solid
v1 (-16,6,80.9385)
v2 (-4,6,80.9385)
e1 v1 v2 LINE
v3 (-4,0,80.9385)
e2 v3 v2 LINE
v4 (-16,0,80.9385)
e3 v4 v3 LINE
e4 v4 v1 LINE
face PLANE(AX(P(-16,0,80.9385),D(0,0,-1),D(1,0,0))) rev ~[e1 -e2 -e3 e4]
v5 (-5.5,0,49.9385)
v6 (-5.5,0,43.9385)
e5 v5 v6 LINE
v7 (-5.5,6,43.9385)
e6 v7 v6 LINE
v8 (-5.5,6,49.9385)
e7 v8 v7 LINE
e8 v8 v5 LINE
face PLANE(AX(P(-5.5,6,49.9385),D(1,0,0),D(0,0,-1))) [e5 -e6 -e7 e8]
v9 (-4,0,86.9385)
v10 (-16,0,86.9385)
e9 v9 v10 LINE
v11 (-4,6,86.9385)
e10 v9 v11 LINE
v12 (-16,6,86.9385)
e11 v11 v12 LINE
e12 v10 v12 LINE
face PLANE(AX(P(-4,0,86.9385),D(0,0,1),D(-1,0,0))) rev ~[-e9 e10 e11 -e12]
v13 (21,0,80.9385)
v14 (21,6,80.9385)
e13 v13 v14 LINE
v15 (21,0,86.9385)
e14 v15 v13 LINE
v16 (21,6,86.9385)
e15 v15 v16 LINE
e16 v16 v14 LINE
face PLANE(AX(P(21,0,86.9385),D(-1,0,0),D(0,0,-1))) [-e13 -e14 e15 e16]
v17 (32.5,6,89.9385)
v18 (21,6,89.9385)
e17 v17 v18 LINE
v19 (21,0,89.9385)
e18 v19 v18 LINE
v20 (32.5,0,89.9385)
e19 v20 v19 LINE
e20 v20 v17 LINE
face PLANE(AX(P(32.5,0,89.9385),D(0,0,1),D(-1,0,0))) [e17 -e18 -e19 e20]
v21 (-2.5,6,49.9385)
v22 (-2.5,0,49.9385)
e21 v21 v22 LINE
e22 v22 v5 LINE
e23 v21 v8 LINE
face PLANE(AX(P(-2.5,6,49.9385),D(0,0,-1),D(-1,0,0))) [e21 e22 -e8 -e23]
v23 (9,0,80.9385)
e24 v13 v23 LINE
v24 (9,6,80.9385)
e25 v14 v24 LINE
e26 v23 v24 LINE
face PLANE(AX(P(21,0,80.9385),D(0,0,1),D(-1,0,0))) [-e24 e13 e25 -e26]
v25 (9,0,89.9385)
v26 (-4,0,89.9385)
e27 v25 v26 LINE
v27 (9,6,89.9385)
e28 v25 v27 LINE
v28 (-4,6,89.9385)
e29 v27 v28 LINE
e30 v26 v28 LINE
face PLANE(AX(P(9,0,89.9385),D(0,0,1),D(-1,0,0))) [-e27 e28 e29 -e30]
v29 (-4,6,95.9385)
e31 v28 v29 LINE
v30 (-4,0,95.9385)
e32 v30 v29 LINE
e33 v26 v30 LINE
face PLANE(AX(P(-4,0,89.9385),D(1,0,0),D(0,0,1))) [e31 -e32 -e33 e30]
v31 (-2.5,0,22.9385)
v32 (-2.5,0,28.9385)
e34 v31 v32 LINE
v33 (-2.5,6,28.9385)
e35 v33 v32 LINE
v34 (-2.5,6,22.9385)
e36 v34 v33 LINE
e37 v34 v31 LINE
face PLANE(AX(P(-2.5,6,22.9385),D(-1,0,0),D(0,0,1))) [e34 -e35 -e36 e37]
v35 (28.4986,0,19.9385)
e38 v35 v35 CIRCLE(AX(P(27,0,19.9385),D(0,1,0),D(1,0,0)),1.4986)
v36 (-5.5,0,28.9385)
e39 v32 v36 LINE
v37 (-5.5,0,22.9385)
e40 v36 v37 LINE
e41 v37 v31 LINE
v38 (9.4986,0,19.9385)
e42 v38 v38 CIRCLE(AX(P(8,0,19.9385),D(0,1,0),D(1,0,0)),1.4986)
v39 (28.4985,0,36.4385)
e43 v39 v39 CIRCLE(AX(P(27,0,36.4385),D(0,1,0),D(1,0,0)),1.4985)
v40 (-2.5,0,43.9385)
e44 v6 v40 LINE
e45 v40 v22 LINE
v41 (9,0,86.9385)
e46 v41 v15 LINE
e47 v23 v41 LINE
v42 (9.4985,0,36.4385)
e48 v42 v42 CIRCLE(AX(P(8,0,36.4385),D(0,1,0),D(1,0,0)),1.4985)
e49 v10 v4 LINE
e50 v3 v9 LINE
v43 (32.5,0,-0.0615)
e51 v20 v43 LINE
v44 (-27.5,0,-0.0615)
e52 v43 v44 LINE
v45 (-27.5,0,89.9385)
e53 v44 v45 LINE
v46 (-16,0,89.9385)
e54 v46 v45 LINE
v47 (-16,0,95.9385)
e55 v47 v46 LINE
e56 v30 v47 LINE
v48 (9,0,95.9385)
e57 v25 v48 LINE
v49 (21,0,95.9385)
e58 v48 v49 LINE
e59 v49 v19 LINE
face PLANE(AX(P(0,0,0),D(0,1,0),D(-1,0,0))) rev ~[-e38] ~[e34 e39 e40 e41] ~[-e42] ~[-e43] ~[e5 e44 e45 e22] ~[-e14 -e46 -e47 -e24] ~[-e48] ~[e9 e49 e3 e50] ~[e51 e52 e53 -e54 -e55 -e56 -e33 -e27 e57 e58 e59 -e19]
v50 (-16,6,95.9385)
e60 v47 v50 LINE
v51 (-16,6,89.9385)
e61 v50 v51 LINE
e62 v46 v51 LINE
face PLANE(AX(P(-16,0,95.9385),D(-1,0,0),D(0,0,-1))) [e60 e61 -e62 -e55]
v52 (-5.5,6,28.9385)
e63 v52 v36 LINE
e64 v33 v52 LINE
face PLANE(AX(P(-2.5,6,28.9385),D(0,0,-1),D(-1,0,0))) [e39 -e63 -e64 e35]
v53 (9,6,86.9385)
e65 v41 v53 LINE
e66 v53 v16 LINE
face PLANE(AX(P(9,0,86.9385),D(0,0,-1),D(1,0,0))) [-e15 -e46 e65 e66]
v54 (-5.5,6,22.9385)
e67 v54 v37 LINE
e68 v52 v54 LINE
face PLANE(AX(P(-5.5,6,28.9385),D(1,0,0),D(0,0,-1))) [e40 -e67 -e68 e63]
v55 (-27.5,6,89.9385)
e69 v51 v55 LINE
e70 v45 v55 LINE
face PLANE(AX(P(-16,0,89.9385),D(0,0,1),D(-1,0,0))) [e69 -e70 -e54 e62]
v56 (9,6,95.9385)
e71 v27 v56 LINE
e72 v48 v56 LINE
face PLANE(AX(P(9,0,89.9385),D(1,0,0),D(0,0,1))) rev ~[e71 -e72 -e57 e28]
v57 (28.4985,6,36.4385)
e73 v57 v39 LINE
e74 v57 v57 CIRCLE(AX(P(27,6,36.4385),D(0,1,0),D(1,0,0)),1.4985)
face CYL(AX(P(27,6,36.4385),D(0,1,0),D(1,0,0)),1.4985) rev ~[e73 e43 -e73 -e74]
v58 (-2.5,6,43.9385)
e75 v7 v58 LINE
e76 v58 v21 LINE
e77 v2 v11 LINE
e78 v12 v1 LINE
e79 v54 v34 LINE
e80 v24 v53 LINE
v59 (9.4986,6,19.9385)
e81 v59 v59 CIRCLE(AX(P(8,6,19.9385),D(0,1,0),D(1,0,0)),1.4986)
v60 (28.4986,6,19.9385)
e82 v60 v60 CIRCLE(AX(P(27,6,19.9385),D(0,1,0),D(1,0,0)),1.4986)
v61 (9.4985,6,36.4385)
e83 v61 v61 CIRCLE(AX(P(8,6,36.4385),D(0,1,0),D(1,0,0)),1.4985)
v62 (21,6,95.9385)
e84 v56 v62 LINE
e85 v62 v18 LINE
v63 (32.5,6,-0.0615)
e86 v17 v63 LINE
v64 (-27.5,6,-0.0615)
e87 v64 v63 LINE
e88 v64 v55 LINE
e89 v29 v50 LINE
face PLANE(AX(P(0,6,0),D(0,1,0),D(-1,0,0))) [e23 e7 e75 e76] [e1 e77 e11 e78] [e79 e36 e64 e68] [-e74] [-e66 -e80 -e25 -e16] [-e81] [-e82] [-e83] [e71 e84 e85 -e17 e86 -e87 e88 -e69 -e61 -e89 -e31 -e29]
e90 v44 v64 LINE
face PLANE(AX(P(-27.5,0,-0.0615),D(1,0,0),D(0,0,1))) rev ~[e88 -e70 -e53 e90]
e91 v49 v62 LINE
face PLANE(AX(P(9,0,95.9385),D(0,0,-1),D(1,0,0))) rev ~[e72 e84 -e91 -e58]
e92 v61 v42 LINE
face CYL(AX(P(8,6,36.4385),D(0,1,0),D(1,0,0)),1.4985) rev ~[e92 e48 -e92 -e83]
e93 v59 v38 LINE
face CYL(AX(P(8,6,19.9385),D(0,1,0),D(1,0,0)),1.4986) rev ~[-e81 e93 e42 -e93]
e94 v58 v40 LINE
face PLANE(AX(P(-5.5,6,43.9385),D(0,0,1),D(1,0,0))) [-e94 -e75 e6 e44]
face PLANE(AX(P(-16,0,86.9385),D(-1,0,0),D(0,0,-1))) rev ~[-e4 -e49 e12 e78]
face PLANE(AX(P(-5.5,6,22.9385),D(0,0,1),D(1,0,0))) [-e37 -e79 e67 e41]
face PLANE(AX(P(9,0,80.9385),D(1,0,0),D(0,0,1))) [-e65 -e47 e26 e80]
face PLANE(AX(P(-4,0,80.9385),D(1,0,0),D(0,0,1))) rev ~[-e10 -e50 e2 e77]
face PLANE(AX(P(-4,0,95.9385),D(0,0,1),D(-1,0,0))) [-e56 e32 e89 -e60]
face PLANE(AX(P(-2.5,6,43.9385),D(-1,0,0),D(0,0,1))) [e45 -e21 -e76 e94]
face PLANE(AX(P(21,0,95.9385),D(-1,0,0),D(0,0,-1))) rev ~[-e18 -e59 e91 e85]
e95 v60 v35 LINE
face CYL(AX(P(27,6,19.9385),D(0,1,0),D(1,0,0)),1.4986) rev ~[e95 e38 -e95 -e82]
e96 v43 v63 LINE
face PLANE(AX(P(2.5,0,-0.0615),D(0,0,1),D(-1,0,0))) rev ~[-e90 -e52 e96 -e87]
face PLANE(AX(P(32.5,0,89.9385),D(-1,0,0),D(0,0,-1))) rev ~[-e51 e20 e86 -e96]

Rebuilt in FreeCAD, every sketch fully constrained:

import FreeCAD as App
import Part
import Sketcher
from FreeCAD import Vector

doc = App.newDocument("Part")
params = doc.addObject("Spreadsheet::Sheet", "Params")
for row, (alias, value) in enumerate([
    ("sketch1_width", "12 mm"),
    ("sketch1_width2", "60 mm"),
    ("sketch1_height", "90 mm"),
    ("sketch1_height2", "6 mm"),
    ("sketch1_width3", "13 mm"),
    ("pad1_length", "6 mm"),
    ("sketch2_width", "3 mm"),
    ("sketch2_height", "6 mm"),
], start=1):
    params.set(f"A{row}", alias)
    params.set(f"B{row}", "=" + value)
    params.setAlias(f"B{row}", alias)

body = doc.addObject("PartDesign::Body", "Body")

# Sketch on XZ plane
sketch1 = body.newObject("Sketcher::SketchObject", "Sketch")
sketch1.AttachmentSupport = (doc.getObject("XZ_Plane"), [""])
sketch1.MapMode = "FlatFace"
sketch1.addGeometry([
    Part.LineSegment(Vector(-28, 0, 0), Vector(-28, 90, 0)),  # 0
    Part.LineSegment(Vector(-28, 90, 0), Vector(-16, 90, 0)),  # 1
    Part.LineSegment(Vector(-16, 90, 0), Vector(-16, 96, 0)),  # 2
    Part.LineSegment(Vector(-16, 96, 0), Vector(-4, 96, 0)),  # 3
    Part.LineSegment(Vector(-4, 96, 0), Vector(-4, 90, 0)),  # 4
    Part.LineSegment(Vector(-4, 90, 0), Vector(9, 90, 0)),  # 5
    Part.LineSegment(Vector(9, 90, 0), Vector(9, 96, 0)),  # 6
    Part.LineSegment(Vector(9, 96, 0), Vector(21, 96, 0)),  # 7
    Part.LineSegment(Vector(21, 96, 0), Vector(21, 90, 0)),  # 8
    Part.LineSegment(Vector(21, 90, 0), Vector(32, 90, 0)),  # 9
    Part.LineSegment(Vector(32, 90, 0), Vector(32, 0, 0)),  # 10
    Part.LineSegment(Vector(32, 0, 0), Vector(-28, 0, 0)),  # 11
    Part.LineSegment(Vector(21, 87, 0), Vector(9, 87, 0)),  # 12
    Part.LineSegment(Vector(9, 87, 0), Vector(9, 81, 0)),  # 13
    Part.LineSegment(Vector(9, 81, 0), Vector(21, 81, 0)),  # 14
    Part.LineSegment(Vector(21, 81, 0), Vector(21, 87, 0)),  # 15
    Part.LineSegment(Vector(-4, 81, 0), Vector(-4, 87, 0)),  # 16
    Part.LineSegment(Vector(-4, 87, 0), Vector(-16, 87, 0)),  # 17
    Part.LineSegment(Vector(-16, 87, 0), Vector(-16, 81, 0)),  # 18
    Part.LineSegment(Vector(-16, 81, 0), Vector(-4, 81, 0)),  # 19
], False)
sketch1.addConstraint([
    Sketcher.Constraint("Coincident", 0, 2, 1, 1),
    Sketcher.Constraint("Coincident", 1, 2, 2, 1),
    Sketcher.Constraint("Coincident", 2, 2, 3, 1),
    Sketcher.Constraint("Coincident", 3, 2, 4, 1),
    Sketcher.Constraint("Coincident", 4, 2, 5, 1),
    Sketcher.Constraint("Coincident", 5, 2, 6, 1),
    Sketcher.Constraint("Coincident", 6, 2, 7, 1),
    Sketcher.Constraint("Coincident", 7, 2, 8, 1),
    Sketcher.Constraint("Coincident", 8, 2, 9, 1),
    Sketcher.Constraint("Coincident", 9, 2, 10, 1),
    Sketcher.Constraint("Coincident", 10, 2, 11, 1),
    Sketcher.Constraint("Coincident", 11, 2, 0, 1),
    Sketcher.Constraint("Coincident", 12, 2, 13, 1),
    Sketcher.Constraint("Coincident", 13, 2, 14, 1),
    Sketcher.Constraint("Coincident", 14, 2, 15, 1),
    Sketcher.Constraint("Coincident", 15, 2, 12, 1),
    Sketcher.Constraint("Coincident", 16, 2, 17, 1),
    Sketcher.Constraint("Coincident", 17, 2, 18, 1),
    Sketcher.Constraint("Coincident", 18, 2, 19, 1),
    Sketcher.Constraint("Coincident", 19, 2, 16, 1),
    Sketcher.Constraint("Vertical", 0),
    Sketcher.Constraint("Horizontal", 1),
    Sketcher.Constraint("Vertical", 2),
    Sketcher.Constraint("Horizontal", 3),
    Sketcher.Constraint("Vertical", 4),
    Sketcher.Constraint("Horizontal", 5),
    Sketcher.Constraint("Vertical", 6),
    Sketcher.Constraint("Horizontal", 7),
    Sketcher.Constraint("Vertical", 8),
    Sketcher.Constraint("Horizontal", 9),
    Sketcher.Constraint("Vertical", 10),
    Sketcher.Constraint("Horizontal", 11),
    Sketcher.Constraint("Horizontal", 12),
    Sketcher.Constraint("Vertical", 13),
    Sketcher.Constraint("Horizontal", 14),
    Sketcher.Constraint("Vertical", 15),
    Sketcher.Constraint("Vertical", 16),
    Sketcher.Constraint("Horizontal", 17),
    Sketcher.Constraint("Vertical", 18),
    Sketcher.Constraint("Horizontal", 19),
    Sketcher.Constraint("Horizontal", 1, 2, 4, 2),
    Sketcher.Constraint("Horizontal", 3, 2, 6, 2),
    Sketcher.Constraint("Horizontal", 5, 2, 8, 2),
    Sketcher.Constraint("Horizontal", 15, 2, 16, 2),
    Sketcher.Constraint("Horizontal", 14, 2, 18, 2),
    Sketcher.Constraint("Vertical", 6, 2, 12, 2),
    Sketcher.Constraint("Vertical", 8, 2, 14, 2),
    Sketcher.Constraint("Vertical", 4, 2, 16, 2),
    Sketcher.Constraint("Vertical", 2, 2, 17, 2),
    Sketcher.Constraint("Equal", 3, 7),
    Sketcher.Constraint("Equal", 1, 9),
    Sketcher.Constraint("Equal", 8, 13),
    Sketcher.Constraint("DistanceX", 3, 1, 3, 2, 12.0),
    Sketcher.Constraint("DistanceX", 11, 2, 11, 1, 60.0),
    Sketcher.Constraint("DistanceY", 0, 1, 0, 2, 90.0),
    Sketcher.Constraint("DistanceY", 2, 1, 2, 2, 6.0),
    Sketcher.Constraint("DistanceY", 12, 2, 5, 2, 3.0),
    Sketcher.Constraint("DistanceX", 5, 1, 5, 2, 13.0),
    Sketcher.Constraint("DistanceX", 1, 2, -1, 1, 16.0),
    Sketcher.Constraint("DistanceY", -1, 1, 0, 2, 89.9385),
])
sketch1.setExpression("Constraints[52]", "Params.sketch1_width")
sketch1.setExpression("Constraints[53]", "Params.sketch1_width2")
sketch1.setExpression("Constraints[54]", "Params.sketch1_height")
sketch1.setExpression("Constraints[55]", "Params.sketch1_height2")
sketch1.setExpression("Constraints[57]", "Params.sketch1_width3")
pad1 = body.newObject("PartDesign::Pad", "Pad")
pad1.Profile = sketch1
pad1.setExpression("Length", "Params.pad1_length")
pad1.Reversed = True

# Sketch on XZ plane
sketch2 = body.newObject("Sketcher::SketchObject", "Sketch001")
sketch2.AttachmentSupport = (doc.getObject("XZ_Plane"), [""])
sketch2.MapMode = "FlatFace"
sketch2.AttachmentOffset = App.Placement(Vector(0, 0, -6), App.Rotation())
sketch2.addGeometry([
    Part.Circle(Vector(8, 19.9, 0), Vector(0, 0, 1), 1.5),  # 0
    Part.Circle(Vector(27, 19.9, 0), Vector(0, 0, 1), 1.5),  # 1
    Part.Circle(Vector(27, 36.4, 0), Vector(0, 0, 1), 1.5),  # 2
    Part.Circle(Vector(8, 36.4, 0), Vector(0, 0, 1), 1.5),  # 3
    Part.LineSegment(Vector(-5.5, 49.9, 0), Vector(-2.5, 49.9, 0)),  # 4
    Part.LineSegment(Vector(-2.5, 49.9, 0), Vector(-2.5, 43.9, 0)),  # 5
    Part.LineSegment(Vector(-2.5, 43.9, 0), Vector(-5.5, 43.9, 0)),  # 6
    Part.LineSegment(Vector(-5.5, 43.9, 0), Vector(-5.5, 49.9, 0)),  # 7
    Part.LineSegment(Vector(-5.5, 28.9, 0), Vector(-2.5, 28.9, 0)),  # 8
    Part.LineSegment(Vector(-2.5, 28.9, 0), Vector(-2.5, 22.9, 0)),  # 9
    Part.LineSegment(Vector(-2.5, 22.9, 0), Vector(-5.5, 22.9, 0)),  # 10
    Part.LineSegment(Vector(-5.5, 22.9, 0), Vector(-5.5, 28.9, 0)),  # 11
], False)
sketch2.addConstraint([
    Sketcher.Constraint("Coincident", 4, 2, 5, 1),
    Sketcher.Constraint("Coincident", 5, 2, 6, 1),
    Sketcher.Constraint("Coincident", 6, 2, 7, 1),
    Sketcher.Constraint("Coincident", 7, 2, 4, 1),
    Sketcher.Constraint("Coincident", 8, 2, 9, 1),
    Sketcher.Constraint("Coincident", 9, 2, 10, 1),
    Sketcher.Constraint("Coincident", 10, 2, 11, 1),
    Sketcher.Constraint("Coincident", 11, 2, 8, 1),
    Sketcher.Constraint("Horizontal", 4),
    Sketcher.Constraint("Vertical", 5),
    Sketcher.Constraint("Horizontal", 6),
    Sketcher.Constraint("Vertical", 7),
    Sketcher.Constraint("Horizontal", 8),
    Sketcher.Constraint("Vertical", 9),
    Sketcher.Constraint("Horizontal", 10),
    Sketcher.Constraint("Vertical", 11),
    Sketcher.Constraint("Equal", 0, 1),
    Sketcher.Constraint("Equal", 1, 2),
    Sketcher.Constraint("Equal", 2, 3),
    Sketcher.Constraint("Horizontal", 0, 3, 1, 3),
    Sketcher.Constraint("Horizontal", 2, 3, 3, 3),
    Sketcher.Constraint("Vertical", 1, 3, 2, 3),
    Sketcher.Constraint("Vertical", 0, 3, 3, 3),
    Sketcher.Constraint("Vertical", 5, 2, 8, 2),
    Sketcher.Constraint("Vertical", 7, 2, 10, 2),
    Sketcher.Constraint("Equal", 7, 9),
    Sketcher.Constraint("DistanceX", 4, 1, 4, 2, 3.0),
    Sketcher.Constraint("DistanceY", 5, 2, 5, 1, 6.0),
    Sketcher.Constraint("Diameter", 2, 2.997),
    Sketcher.Constraint("DistanceX", 0, 3, 1, 3, 19.0),
    Sketcher.Constraint("DistanceY", 8, 2, 5, 2, 15.0),
    Sketcher.Constraint("DistanceY", 0, 3, 9, 2, 3.0),
    Sketcher.Constraint("DistanceY", 1, 3, 2, 3, 16.5),
    Sketcher.Constraint("DistanceX", -1, 1, 0, 3, 8.0),
    Sketcher.Constraint("DistanceX", 4, 2, -1, 1, 2.5),
    Sketcher.Constraint("DistanceY", -1, 1, 0, 3, 19.9385),
])
sketch2.setExpression("Constraints[26]", "Params.sketch2_width")
sketch2.setExpression("Constraints[27]", "Params.sketch2_height")
pocket1 = body.newObject("PartDesign::Pocket", "Pocket")
pocket1.Profile = sketch2
pocket1.Type = "ThroughAll"
pocket1.Reversed = True

doc.recompute()
